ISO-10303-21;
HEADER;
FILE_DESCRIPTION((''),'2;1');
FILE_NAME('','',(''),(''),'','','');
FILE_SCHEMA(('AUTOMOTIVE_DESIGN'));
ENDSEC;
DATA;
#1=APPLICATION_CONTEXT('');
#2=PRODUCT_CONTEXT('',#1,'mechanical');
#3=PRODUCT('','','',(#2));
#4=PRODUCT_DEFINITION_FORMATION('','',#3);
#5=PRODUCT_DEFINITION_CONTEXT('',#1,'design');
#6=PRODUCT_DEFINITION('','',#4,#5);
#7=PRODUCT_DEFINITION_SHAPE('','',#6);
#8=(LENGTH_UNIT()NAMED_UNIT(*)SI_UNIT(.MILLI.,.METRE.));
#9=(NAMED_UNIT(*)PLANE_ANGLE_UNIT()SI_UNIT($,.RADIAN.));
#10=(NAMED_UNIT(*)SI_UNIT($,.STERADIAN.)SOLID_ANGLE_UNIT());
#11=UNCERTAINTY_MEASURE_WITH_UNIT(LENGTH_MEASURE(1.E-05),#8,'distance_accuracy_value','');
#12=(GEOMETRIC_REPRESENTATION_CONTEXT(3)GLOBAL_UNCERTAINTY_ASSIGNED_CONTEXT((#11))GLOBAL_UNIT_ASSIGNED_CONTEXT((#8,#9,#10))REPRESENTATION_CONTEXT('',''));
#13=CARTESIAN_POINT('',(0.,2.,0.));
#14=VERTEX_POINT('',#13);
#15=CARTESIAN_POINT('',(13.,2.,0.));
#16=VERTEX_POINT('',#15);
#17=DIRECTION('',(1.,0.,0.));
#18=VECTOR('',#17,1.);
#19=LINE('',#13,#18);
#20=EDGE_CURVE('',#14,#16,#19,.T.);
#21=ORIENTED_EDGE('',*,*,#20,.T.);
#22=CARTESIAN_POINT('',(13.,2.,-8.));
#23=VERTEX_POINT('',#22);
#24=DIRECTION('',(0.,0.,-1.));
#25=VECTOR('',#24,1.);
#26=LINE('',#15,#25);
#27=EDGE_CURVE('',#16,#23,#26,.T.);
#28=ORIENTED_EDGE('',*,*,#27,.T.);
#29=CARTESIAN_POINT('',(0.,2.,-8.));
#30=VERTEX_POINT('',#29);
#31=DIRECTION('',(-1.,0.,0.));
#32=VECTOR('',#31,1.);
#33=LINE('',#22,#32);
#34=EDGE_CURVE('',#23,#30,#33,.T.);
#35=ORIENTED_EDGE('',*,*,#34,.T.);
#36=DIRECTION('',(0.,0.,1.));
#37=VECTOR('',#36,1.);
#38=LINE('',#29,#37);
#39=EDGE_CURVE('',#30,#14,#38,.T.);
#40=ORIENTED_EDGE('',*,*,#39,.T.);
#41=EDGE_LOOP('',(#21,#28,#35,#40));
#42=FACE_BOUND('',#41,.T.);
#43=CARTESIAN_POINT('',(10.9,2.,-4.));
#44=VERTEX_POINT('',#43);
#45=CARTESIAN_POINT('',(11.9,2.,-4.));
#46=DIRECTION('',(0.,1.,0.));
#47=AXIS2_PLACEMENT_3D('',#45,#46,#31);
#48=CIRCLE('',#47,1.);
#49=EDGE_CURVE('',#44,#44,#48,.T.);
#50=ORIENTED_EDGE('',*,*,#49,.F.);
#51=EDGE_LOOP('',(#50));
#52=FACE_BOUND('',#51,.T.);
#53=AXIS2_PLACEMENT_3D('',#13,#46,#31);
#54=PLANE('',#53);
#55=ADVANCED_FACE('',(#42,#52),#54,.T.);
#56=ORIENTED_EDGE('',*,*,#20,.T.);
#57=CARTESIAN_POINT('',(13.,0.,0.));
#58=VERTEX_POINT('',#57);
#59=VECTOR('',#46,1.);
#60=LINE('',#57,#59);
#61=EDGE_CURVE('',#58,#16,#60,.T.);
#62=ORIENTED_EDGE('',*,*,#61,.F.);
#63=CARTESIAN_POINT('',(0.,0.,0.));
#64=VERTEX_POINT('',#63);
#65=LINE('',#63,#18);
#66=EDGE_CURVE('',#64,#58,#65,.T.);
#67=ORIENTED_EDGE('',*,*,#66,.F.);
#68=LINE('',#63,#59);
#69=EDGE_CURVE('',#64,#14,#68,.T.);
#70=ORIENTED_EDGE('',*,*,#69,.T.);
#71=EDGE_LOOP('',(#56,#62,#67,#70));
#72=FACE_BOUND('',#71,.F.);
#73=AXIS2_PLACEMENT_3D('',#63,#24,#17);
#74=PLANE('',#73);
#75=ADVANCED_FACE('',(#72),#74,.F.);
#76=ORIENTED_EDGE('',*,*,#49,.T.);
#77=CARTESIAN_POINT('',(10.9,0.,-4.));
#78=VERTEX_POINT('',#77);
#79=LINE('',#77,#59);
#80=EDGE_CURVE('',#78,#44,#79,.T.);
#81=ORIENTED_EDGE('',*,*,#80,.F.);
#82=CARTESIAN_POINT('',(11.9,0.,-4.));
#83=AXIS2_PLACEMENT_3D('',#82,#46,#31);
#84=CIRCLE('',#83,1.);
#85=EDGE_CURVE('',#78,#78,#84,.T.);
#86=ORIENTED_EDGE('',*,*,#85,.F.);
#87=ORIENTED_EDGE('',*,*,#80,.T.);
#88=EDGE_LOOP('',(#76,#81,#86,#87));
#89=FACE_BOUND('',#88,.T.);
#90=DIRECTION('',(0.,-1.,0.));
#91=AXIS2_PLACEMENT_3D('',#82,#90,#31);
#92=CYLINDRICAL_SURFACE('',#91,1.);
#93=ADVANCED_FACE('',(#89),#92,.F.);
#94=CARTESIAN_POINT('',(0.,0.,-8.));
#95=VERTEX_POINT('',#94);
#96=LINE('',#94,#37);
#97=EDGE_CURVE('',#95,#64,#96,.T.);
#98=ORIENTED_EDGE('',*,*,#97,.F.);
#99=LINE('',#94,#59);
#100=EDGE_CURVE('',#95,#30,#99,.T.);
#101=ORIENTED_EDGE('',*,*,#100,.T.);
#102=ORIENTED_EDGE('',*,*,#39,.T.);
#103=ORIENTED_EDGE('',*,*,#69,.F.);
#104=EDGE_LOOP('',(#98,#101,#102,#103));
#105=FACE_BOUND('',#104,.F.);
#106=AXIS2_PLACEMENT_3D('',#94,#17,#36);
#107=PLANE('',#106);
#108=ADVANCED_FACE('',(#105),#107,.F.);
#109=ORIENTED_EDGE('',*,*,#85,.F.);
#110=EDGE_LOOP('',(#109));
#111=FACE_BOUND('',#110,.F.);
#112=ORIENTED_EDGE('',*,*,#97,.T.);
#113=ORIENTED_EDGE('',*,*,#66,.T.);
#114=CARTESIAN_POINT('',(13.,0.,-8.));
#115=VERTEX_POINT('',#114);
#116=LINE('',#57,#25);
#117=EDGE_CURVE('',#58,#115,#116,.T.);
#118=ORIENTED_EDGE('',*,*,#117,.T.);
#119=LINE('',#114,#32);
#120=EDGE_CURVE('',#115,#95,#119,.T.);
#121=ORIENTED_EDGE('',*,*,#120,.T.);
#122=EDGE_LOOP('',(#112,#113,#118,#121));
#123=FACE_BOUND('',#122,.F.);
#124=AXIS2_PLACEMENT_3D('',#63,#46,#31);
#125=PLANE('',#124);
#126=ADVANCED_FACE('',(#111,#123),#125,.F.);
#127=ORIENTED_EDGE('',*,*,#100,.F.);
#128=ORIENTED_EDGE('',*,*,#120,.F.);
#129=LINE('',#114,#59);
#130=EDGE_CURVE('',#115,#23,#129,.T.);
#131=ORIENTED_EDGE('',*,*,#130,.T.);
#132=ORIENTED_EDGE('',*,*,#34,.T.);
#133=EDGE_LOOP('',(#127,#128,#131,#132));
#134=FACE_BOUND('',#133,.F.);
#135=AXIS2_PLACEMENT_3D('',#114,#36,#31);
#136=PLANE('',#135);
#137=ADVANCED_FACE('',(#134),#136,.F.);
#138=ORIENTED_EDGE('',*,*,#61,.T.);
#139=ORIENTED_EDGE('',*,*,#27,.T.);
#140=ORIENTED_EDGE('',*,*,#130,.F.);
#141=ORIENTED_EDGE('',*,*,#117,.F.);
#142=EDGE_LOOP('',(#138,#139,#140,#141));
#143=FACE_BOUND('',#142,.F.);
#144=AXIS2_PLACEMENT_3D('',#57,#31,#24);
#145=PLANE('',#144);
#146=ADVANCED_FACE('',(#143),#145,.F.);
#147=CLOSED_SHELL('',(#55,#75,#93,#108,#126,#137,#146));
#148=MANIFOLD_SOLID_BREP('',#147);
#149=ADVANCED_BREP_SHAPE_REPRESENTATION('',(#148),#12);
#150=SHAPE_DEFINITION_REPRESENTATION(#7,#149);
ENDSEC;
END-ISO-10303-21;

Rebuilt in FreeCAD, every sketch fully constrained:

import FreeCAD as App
import Part
import Sketcher
Q = App.Units.Quantity


def add_polygon(sketch, points):
    """Adds a closed chain of lines whose ends are joined by coincident constraints."""
    first, n = sketch.GeometryCount, len(points)
    for a, b in zip(points, points[1:] + points[:1]):
        sketch.addGeometry(Part.LineSegment(App.Vector(*a, 0), App.Vector(*b, 0)), False)
    for i in range(n):
        sketch.addConstraint(Sketcher.Constraint("Coincident", first + i, 2, first + (i + 1) % n, 1))

doc = App.newDocument("Part")
body = doc.addObject("PartDesign::Body", "Body")

sketch1 = body.newObject("Sketcher::SketchObject", "Sketch")
sketch1.AttachmentSupport = (doc.getObject("XZ_Plane"), [""])
sketch1.MapMode = "FlatFace"
add_polygon(sketch1, [(0, -8), (0, 0), (13, 0), (13, -8)])
sketch1.addGeometry(Part.Circle(App.Vector(11.9, -4, 0), App.Vector(0, 0, 1), 1), False)
sketch1.addConstraint(Sketcher.Constraint("Vertical", 0))
sketch1.addConstraint(Sketcher.Constraint("Horizontal", 1))
sketch1.addConstraint(Sketcher.Constraint("Vertical", 2))
sketch1.addConstraint(Sketcher.Constraint("Horizontal", 3))
sketch1.addConstraint(Sketcher.Constraint("Coincident", 0, 2, -1, 1))
sketch1.addConstraint(Sketcher.Constraint("Diameter", 4, Q("2 mm")))
sketch1.addConstraint(Sketcher.Constraint("DistanceX", 1, 1, 1, 2, Q("13 mm")))
sketch1.addConstraint(Sketcher.Constraint("DistanceY", 0, 1, 0, 2, Q("8 mm")))
sketch1.addConstraint(Sketcher.Constraint("DistanceY", 4, 3, -1, 1, Q("4 mm")))
sketch1.addConstraint(Sketcher.Constraint("DistanceX", 4, 3, 1, 2, Q("1.1 mm")))
pad1 = body.newObject("PartDesign::Pad", "Pad")
pad1.Profile = sketch1
pad1.Length = 2
pad1.Reversed = True

doc.recompute()
